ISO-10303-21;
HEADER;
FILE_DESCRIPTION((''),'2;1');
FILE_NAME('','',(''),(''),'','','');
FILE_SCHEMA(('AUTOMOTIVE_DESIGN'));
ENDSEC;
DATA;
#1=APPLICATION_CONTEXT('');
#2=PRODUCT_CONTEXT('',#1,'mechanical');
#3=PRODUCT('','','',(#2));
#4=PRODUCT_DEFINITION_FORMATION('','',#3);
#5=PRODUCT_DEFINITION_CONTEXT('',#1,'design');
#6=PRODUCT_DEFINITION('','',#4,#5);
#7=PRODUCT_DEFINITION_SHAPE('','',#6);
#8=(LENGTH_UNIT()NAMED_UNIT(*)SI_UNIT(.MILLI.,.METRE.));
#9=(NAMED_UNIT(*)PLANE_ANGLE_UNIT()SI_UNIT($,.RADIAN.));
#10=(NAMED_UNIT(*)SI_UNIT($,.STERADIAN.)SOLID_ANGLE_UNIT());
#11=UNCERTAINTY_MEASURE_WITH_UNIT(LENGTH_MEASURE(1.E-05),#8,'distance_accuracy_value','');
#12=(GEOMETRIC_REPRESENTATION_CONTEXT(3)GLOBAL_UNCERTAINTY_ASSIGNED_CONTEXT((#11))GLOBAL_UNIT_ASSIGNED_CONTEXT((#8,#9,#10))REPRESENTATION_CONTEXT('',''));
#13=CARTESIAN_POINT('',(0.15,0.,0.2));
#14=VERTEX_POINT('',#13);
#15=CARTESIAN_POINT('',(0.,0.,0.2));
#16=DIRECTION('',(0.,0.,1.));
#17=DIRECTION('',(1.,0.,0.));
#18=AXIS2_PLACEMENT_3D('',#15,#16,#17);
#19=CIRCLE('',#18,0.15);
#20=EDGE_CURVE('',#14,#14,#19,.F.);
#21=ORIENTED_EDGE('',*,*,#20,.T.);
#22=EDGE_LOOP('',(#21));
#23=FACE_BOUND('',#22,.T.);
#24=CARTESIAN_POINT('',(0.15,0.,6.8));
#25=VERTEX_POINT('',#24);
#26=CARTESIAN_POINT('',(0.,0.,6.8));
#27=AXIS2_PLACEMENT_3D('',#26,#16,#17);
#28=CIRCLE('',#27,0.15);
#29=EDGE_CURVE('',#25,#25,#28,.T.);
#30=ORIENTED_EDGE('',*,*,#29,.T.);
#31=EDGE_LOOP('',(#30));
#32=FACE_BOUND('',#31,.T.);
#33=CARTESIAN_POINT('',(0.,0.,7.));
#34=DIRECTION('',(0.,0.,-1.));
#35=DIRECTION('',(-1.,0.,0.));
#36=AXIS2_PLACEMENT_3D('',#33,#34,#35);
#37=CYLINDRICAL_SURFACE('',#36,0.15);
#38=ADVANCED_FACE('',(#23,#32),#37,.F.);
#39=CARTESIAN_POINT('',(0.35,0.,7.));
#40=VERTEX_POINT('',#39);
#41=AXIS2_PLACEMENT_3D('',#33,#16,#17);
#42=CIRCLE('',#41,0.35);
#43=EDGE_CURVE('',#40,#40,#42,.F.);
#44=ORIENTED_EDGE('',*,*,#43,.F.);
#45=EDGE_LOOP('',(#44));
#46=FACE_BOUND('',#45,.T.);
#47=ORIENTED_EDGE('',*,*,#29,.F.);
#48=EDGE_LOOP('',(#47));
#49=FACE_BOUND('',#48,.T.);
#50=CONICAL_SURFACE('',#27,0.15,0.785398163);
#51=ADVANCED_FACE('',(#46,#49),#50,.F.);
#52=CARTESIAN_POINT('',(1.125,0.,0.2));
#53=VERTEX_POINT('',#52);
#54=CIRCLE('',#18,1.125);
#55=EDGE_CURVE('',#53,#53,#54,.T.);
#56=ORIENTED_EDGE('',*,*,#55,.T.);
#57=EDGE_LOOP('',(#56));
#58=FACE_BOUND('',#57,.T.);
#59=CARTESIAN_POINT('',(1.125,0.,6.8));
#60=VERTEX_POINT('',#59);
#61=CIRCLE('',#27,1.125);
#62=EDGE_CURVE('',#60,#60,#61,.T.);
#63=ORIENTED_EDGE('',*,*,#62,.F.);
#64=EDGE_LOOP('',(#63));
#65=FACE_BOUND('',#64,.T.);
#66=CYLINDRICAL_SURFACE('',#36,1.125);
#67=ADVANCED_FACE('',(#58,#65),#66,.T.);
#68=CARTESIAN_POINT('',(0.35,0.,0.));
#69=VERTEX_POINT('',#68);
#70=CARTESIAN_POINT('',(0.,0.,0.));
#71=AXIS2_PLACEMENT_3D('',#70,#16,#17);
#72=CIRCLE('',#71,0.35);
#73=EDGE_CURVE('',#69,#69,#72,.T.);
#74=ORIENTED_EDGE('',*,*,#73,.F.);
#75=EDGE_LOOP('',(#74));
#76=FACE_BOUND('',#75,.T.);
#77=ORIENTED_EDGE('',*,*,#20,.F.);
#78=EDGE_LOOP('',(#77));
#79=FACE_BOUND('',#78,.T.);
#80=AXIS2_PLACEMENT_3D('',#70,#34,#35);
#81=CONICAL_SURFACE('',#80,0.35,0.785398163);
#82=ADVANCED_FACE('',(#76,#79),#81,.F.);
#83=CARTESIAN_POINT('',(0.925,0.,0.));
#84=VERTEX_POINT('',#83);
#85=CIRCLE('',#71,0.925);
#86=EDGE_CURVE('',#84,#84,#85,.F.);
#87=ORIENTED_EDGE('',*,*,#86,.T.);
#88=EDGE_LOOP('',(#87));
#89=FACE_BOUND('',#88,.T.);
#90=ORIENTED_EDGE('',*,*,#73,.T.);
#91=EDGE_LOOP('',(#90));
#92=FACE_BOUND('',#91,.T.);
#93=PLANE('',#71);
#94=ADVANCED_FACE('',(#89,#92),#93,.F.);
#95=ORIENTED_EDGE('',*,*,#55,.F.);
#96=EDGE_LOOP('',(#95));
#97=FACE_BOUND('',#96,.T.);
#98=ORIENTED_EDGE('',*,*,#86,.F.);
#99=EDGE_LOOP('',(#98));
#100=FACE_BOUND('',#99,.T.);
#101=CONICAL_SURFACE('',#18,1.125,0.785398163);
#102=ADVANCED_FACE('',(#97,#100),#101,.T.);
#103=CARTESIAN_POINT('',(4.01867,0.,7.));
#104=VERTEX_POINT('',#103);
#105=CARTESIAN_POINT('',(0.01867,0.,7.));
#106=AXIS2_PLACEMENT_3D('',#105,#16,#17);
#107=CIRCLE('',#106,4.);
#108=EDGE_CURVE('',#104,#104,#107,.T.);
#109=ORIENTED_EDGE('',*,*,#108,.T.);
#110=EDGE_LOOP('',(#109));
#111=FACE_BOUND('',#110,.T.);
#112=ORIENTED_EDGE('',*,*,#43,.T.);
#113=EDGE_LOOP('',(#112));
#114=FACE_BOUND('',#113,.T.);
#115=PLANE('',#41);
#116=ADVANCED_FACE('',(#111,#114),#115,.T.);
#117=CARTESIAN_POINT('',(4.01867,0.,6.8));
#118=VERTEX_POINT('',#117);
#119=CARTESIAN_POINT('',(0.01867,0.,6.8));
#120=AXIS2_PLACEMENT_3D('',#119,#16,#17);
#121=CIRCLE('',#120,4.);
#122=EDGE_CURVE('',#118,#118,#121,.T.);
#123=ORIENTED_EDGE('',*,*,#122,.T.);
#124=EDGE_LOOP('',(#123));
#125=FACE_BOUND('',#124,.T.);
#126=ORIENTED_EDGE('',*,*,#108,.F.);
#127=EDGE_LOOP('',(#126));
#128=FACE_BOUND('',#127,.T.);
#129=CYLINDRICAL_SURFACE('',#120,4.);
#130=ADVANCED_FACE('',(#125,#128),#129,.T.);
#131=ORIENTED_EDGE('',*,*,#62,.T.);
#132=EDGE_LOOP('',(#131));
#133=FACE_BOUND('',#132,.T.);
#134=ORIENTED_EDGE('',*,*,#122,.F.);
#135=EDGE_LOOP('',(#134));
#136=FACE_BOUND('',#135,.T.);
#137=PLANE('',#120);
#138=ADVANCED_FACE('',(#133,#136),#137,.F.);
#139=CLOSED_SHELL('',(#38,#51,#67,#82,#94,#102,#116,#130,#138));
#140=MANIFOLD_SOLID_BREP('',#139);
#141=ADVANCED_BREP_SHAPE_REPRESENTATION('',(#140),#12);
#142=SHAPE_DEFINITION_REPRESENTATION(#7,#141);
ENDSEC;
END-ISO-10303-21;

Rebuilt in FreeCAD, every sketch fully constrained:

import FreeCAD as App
import Part
import Sketcher

V = App.Vector
Q = App.Units.Quantity


def edges_at(feature, points):
    """Names of the edges that pass closest to the given points."""
    edges = feature.Shape.Edges
    near = lambda p: min(range(len(edges)), key=lambda i: edges[i].distToShape(Part.Vertex(*p))[0])
    return sorted({f"Edge{near(p) + 1}" for p in points})

doc = App.newDocument("Part")
body = doc.addObject("PartDesign::Body", "Body")

# Sketch on XY plane
sketch1 = body.newObject("Sketcher::SketchObject", "Sketch")
sketch1.AttachmentSupport = (doc.getObject("XY_Plane"), [""])
sketch1.MapMode = "FlatFace"
sketch1.addGeometry(Part.Circle(V(0, 0, 0), V(0, 0, 1), 1.12), False)
sketch1.addGeometry(Part.Circle(V(0, 0, 0), V(0, 0, 1), 0.15), False)
sketch1.addConstraint(Sketcher.Constraint("Coincident", 0, 3, -1, 1))
sketch1.addConstraint(Sketcher.Constraint("Coincident", 1, 3, -1, 1))
sketch1.addConstraint(Sketcher.Constraint("Diameter", 1, Q("0.3 mm")))
sketch1.addConstraint(Sketcher.Constraint("Diameter", 0, Q("2.25 mm")))
pad1 = body.newObject("PartDesign::Pad", "Pad")
pad1.Profile = sketch1
pad1.Length = 7

# Sketch on XY plane
sketch2 = body.newObject("Sketcher::SketchObject", "Sketch001")
sketch2.AttachmentSupport = (doc.getObject("XY_Plane"), [""])
sketch2.MapMode = "FlatFace"
sketch2.AttachmentOffset = App.Placement(V(0, 0, 7), App.Rotation())
sketch2.addGeometry(Part.Circle(V(0, 0, 0), V(0, 0, 1), 4), False)
sketch2.addGeometry(Part.Circle(V(0, 0, 0), V(0, 0, 1), 1.1), False)
sketch2.addConstraint(Sketcher.Constraint("Coincident", 1, 3, -1, 1))
sketch2.addConstraint(Sketcher.Constraint("PointOnObject", 0, 3, -1))
sketch2.addConstraint(Sketcher.Constraint("Diameter", 0, Q("8 mm")))
sketch2.addConstraint(Sketcher.Constraint("Diameter", 1, Q("2.25 mm")))
sketch2.addConstraint(Sketcher.Constraint("DistanceX", -1, 1, 0, 3, Q("0.01867 mm")))
pad2 = body.newObject("PartDesign::Pad", "Pad001")
pad2.Profile = sketch2
pad2.Length = 0.2
pad2.Reversed = True
doc.recompute()

chamfer = body.newObject("PartDesign::Chamfer", "Chamfer")
chamfer.Base = (pad2, edges_at(pad2, [(-1.125, 0, 0), (-0.15, 0, 0), (-0.15, 0, 7)]))
chamfer.Size = 0.2

doc.recompute()
